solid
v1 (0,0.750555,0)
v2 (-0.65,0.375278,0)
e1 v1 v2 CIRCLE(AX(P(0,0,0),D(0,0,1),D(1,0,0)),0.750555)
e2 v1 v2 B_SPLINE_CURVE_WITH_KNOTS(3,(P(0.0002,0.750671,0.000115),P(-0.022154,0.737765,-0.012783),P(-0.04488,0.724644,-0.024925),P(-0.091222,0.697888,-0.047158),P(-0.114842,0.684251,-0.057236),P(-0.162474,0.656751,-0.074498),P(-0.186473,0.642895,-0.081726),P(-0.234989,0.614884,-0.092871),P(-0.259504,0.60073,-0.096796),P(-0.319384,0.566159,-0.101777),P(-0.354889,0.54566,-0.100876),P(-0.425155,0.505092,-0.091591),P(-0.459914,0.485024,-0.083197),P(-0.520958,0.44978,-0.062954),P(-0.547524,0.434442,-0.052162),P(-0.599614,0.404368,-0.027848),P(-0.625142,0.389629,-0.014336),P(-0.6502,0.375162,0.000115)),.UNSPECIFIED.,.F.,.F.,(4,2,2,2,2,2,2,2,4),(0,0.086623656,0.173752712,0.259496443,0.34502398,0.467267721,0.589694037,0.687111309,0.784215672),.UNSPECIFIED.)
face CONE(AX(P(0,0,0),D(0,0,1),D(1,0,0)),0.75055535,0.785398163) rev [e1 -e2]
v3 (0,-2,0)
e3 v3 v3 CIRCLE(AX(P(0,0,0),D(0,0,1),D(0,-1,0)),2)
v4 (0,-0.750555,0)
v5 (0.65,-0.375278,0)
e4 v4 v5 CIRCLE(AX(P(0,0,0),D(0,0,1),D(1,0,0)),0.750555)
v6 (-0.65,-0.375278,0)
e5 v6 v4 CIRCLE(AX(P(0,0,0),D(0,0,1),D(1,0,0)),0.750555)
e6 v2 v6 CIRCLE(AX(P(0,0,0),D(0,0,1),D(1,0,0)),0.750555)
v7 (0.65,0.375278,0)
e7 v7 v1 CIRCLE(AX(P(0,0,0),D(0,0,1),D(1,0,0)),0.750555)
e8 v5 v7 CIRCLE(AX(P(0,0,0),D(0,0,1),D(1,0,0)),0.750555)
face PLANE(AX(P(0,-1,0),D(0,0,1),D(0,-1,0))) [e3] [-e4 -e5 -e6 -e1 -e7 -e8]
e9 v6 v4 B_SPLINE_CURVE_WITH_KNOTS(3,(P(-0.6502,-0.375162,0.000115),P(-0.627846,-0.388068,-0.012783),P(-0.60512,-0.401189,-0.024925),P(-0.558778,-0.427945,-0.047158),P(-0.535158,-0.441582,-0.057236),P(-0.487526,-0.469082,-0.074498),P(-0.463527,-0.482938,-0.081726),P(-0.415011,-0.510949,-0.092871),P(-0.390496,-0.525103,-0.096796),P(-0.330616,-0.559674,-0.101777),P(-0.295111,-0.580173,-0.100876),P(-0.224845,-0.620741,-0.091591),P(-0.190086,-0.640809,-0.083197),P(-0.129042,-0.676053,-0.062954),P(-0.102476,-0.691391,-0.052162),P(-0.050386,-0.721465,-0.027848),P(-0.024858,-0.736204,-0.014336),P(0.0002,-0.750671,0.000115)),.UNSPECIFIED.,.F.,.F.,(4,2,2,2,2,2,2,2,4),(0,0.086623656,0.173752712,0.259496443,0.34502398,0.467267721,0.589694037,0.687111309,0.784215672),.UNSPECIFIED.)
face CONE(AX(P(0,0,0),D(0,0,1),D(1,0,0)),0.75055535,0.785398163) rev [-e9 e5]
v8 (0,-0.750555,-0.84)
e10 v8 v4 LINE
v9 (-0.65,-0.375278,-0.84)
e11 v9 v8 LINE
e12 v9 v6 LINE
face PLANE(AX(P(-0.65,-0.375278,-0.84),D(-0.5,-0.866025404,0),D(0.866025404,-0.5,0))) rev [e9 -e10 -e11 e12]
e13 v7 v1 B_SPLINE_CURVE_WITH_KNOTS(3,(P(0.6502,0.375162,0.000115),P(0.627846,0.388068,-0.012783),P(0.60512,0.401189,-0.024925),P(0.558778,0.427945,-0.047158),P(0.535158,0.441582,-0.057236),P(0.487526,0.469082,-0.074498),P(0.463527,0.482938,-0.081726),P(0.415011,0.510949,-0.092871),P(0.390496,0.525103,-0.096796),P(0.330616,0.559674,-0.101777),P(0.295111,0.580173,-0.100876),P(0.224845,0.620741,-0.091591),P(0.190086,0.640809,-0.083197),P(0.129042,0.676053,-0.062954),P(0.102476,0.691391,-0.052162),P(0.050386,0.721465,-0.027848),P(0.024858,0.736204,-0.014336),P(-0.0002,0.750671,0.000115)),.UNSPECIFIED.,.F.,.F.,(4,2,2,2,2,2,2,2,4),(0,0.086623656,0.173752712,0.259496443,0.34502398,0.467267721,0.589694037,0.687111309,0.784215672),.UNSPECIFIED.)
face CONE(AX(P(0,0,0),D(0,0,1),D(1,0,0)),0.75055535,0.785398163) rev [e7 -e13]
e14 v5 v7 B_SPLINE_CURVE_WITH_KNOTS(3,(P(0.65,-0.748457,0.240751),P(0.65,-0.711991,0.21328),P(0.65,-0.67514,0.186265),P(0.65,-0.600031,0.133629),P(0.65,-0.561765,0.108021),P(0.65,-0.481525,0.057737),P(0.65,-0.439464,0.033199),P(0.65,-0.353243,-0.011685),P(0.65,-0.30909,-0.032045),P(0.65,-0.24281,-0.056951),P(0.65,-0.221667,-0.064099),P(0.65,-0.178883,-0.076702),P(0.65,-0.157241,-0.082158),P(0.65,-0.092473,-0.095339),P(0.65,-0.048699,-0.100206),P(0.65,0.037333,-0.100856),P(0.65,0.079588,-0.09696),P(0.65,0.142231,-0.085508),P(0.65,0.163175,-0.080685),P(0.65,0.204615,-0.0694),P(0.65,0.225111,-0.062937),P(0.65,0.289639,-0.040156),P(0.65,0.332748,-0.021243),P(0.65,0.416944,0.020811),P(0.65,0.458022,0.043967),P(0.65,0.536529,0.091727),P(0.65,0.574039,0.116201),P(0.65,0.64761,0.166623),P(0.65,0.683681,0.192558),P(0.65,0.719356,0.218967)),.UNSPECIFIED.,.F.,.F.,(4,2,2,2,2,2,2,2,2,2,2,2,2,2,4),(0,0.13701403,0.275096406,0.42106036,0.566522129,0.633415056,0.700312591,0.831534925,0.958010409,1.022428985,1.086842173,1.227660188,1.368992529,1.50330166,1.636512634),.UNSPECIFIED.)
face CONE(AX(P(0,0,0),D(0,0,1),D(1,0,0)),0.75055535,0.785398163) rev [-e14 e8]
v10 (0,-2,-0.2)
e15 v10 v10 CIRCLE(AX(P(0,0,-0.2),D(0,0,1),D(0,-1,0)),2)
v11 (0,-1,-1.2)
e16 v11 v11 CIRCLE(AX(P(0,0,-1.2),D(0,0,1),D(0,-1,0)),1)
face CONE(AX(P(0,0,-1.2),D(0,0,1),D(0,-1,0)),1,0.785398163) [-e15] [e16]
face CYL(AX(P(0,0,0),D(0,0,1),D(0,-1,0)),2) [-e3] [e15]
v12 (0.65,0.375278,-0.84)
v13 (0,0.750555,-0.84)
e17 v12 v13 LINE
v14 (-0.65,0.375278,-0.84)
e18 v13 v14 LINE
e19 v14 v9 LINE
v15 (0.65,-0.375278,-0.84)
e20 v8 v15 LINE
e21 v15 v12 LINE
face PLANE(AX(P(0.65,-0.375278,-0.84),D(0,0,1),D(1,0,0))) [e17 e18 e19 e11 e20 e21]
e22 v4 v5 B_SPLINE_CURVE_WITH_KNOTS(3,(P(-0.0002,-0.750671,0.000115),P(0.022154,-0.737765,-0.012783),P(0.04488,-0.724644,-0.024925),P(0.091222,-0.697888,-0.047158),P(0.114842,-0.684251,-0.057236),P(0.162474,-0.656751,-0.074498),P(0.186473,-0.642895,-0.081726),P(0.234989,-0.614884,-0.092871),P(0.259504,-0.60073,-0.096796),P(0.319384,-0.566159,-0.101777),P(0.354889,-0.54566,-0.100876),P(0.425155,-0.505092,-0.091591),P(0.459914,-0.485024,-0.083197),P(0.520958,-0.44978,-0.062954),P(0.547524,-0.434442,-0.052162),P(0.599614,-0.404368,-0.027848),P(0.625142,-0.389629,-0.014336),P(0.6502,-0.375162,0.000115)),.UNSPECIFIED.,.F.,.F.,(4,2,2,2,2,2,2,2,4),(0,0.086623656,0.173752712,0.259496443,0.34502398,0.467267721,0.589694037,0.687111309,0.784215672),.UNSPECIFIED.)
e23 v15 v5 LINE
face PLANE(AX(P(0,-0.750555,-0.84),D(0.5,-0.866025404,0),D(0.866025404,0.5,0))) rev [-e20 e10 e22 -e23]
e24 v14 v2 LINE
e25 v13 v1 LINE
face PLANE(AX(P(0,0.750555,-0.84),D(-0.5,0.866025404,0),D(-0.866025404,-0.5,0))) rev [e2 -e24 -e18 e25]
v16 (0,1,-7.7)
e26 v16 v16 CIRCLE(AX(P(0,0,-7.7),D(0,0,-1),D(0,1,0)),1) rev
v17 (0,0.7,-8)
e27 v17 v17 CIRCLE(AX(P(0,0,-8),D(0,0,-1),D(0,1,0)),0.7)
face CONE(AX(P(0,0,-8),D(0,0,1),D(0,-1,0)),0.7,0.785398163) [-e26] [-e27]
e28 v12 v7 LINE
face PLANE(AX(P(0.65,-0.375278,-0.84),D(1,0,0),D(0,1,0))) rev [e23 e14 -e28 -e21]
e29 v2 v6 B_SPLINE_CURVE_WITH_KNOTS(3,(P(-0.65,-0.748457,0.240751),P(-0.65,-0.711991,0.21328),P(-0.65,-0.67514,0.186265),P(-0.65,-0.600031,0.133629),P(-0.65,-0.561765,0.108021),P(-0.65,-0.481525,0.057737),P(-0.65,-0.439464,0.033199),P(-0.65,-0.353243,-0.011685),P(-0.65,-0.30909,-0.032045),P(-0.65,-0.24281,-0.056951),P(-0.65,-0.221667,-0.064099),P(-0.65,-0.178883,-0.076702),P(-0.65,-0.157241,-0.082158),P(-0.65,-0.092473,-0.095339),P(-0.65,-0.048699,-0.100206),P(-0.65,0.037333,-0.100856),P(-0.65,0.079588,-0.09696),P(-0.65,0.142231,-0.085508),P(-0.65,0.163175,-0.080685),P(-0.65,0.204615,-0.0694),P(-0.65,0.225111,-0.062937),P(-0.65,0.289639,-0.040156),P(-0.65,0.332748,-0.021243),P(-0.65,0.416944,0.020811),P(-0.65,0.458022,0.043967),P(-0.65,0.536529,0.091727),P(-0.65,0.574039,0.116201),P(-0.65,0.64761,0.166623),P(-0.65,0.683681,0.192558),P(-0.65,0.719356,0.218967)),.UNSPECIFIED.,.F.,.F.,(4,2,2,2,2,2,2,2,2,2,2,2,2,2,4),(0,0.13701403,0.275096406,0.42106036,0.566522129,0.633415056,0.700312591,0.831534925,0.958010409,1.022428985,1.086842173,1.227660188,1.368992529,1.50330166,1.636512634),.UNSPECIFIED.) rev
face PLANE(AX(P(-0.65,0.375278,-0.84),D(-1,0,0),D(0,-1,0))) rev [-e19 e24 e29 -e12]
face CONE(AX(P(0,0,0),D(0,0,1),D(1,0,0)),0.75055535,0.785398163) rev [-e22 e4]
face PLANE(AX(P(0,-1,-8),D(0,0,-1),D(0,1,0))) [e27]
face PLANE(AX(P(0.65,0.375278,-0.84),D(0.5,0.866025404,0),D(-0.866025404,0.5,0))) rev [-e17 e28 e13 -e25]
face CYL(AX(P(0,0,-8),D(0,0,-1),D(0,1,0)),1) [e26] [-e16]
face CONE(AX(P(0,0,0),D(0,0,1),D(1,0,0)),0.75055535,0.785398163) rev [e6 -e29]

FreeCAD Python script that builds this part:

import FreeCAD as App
import Part
import Sketcher

V = App.Vector
Q = App.Units.Quantity


def edges_at(feature, points):
    """Names of the edges that pass closest to the given points."""
    edges = feature.Shape.Edges
    near = lambda p: min(range(len(edges)), key=lambda i: edges[i].distToShape(Part.Vertex(*p))[0])
    return sorted({f"Edge{near(p) + 1}" for p in points})


def add_polygon(sketch, points):
    """Adds a closed chain of lines whose ends are joined by coincident constraints."""
    first, n = sketch.GeometryCount, len(points)
    for a, b in zip(points, points[1:] + points[:1]):
        sketch.addGeometry(Part.LineSegment(App.Vector(*a, 0), App.Vector(*b, 0)), False)
    for i in range(n):
        sketch.addConstraint(Sketcher.Constraint("Coincident", first + i, 2, first + (i + 1) % n, 1))

doc = App.newDocument("Part")
body = doc.addObject("PartDesign::Body", "Body")

sketch1 = body.newObject("Sketcher::SketchObject", "Sketch")
sketch1.AttachmentSupport = (doc.getObject("YZ_Plane"), [""])
sketch1.MapMode = "FlatFace"
add_polygon(sketch1, [(1, 0), (0, 0), (0, -8), (1, -8)])
sketch1.addConstraint(Sketcher.Constraint("Horizontal", 0))
sketch1.addConstraint(Sketcher.Constraint("Vertical", 1))
sketch1.addConstraint(Sketcher.Constraint("Horizontal", 2))
sketch1.addConstraint(Sketcher.Constraint("Vertical", 3))
sketch1.addConstraint(Sketcher.Constraint("Coincident", 0, 2, -1, 1))
sketch1.addConstraint(Sketcher.Constraint("DistanceX", 0, 2, 0, 1, Q("1 mm")))
sketch1.addConstraint(Sketcher.Constraint("DistanceY", 1, 2, 1, 1, Q("8 mm")))
revolution = body.newObject("PartDesign::Revolution", "Revolution")
revolution.Profile = sketch1
revolution.ReferenceAxis = (sketch1, ["V_Axis"])
revolution.Angle = 360
doc.recompute()

chamfer = body.newObject("PartDesign::Chamfer", "Chamfer")
chamfer.Base = (revolution, edges_at(revolution, [(0, -1, -8)]))
chamfer.Size = 0.3

sketch2 = body.newObject("Sketcher::SketchObject", "Sketch001")
sketch2.AttachmentSupport = (doc.getObject("YZ_Plane"), [""])
sketch2.MapMode = "FlatFace"
add_polygon(sketch2, [(2, -0.2), (2, 0), (0, 0), (0, -1.2), (1, -1.2)])
sketch2.addConstraint(Sketcher.Constraint("Vertical", 0))
sketch2.addConstraint(Sketcher.Constraint("Horizontal", 1))
sketch2.addConstraint(Sketcher.Constraint("Vertical", 2))
sketch2.addConstraint(Sketcher.Constraint("Horizontal", 3))
sketch2.addConstraint(Sketcher.Constraint("Coincident", 1, 2, -1, 1))
sketch2.addConstraint(Sketcher.Constraint("DistanceX", 1, 2, 1, 1, Q("2 mm")))
sketch2.addConstraint(Sketcher.Constraint("DistanceX", 3, 1, 3, 2, Q("1 mm")))
sketch2.addConstraint(Sketcher.Constraint("Angle", 4, Q("45 deg")))
sketch2.addConstraint(Sketcher.Constraint("DistanceY", 0, 1, 0, 2, Q("0.2 mm")))
revolution2 = body.newObject("PartDesign::Revolution", "Revolution001")
revolution2.Profile = sketch2
revolution2.ReferenceAxis = (sketch2, ["V_Axis"])
revolution2.Angle = 360

sketch3 = body.newObject("Sketcher::SketchObject", "Sketch002")
sketch3.AttachmentSupport = (doc.getObject("YZ_Plane"), [""])
sketch3.MapMode = "FlatFace"
add_polygon(sketch3, [(0, -1.2), (-1, -1.2), (0, -2.2)])
sketch3.addConstraint(Sketcher.Constraint("Horizontal", 0))
sketch3.addConstraint(Sketcher.Constraint("Vertical", 2))
sketch3.addConstraint(Sketcher.Constraint("PointOnObject", 1, 2, -2))
sketch3.addConstraint(Sketcher.Constraint("Equal", 0, 2))
sketch3.addConstraint(Sketcher.Constraint("DistanceX", 0, 2, 0, 1, Q("1 mm")))
sketch3.addConstraint(Sketcher.Constraint("DistanceY", 0, 2, -1, 1, Q("1.2 mm")))
revolution3 = body.newObject("PartDesign::Revolution", "Revolution002")
revolution3.Profile = sketch3
revolution3.ReferenceAxis = (sketch3, ["V_Axis"])
revolution3.Angle = 360

sketch4 = body.newObject("Sketcher::SketchObject", "Sketch003")
sketch4.AttachmentSupport = (doc.getObject("XY_Plane"), [""])
sketch4.MapMode = "FlatFace"
add_polygon(sketch4, [(0.65, -0.375278), (0.65, 0.375278), (0, 0.750555), (-0.65, 0.375278), (-0.65, -0.375278), (0, -0.750555)])
sketch4.addConstraint(Sketcher.Constraint("Vertical", 0))
sketch4.addConstraint(Sketcher.Constraint("Vertical", 3))
sketch4.addConstraint(Sketcher.Constraint("Symmetric", 0, 2, 3, 2, -1, 1))
sketch4.addConstraint(Sketcher.Constraint("Symmetric", 1, 2, 4, 2, -1, 1))
sketch4.addConstraint(Sketcher.Constraint("PointOnObject", 1, 2, -2))
sketch4.addConstraint(Sketcher.Constraint("Parallel", 2, 5))
sketch4.addConstraint(Sketcher.Constraint("Horizontal", 0, 2, 2, 2))
sketch4.addConstraint(Sketcher.Constraint("Angle", 1, Q("150 deg")))
sketch4.addConstraint(Sketcher.Constraint("DistanceX", 2, 2, 0, 2, Q("1.3 mm")))
sketch4.addConstraint(Sketcher.Constraint("DistanceY", 0, 1, 0, 2, Q("0.750555 mm")))
pocket1 = body.newObject("PartDesign::Pocket", "Pocket")
pocket1.Profile = sketch4
pocket1.Length = 0.84

sketch5 = body.newObject("Sketcher::SketchObject", "Sketch004")
sketch5.AttachmentSupport = (doc.getObject("YZ_Plane"), [""])
sketch5.MapMode = "FlatFace"
add_polygon(sketch5, [(0, 0), (-0.750555, 0), (0, -0.750555)])
sketch5.addConstraint(Sketcher.Constraint("Horizontal", 0))
sketch5.addConstraint(Sketcher.Constraint("Vertical", 2))
sketch5.addConstraint(Sketcher.Constraint("Coincident", 2, 2, -1, 1))
sketch5.addConstraint(Sketcher.Constraint("Equal", 0, 2))
sketch5.addConstraint(Sketcher.Constraint("DistanceX", 0, 2, 0, 1, Q("0.750555 mm")))
groove = body.newObject("PartDesign::Groove", "Groove")
groove.Profile = sketch5
groove.ReferenceAxis = (sketch5, ["V_Axis"])
groove.Angle = 360

doc.recompute()
